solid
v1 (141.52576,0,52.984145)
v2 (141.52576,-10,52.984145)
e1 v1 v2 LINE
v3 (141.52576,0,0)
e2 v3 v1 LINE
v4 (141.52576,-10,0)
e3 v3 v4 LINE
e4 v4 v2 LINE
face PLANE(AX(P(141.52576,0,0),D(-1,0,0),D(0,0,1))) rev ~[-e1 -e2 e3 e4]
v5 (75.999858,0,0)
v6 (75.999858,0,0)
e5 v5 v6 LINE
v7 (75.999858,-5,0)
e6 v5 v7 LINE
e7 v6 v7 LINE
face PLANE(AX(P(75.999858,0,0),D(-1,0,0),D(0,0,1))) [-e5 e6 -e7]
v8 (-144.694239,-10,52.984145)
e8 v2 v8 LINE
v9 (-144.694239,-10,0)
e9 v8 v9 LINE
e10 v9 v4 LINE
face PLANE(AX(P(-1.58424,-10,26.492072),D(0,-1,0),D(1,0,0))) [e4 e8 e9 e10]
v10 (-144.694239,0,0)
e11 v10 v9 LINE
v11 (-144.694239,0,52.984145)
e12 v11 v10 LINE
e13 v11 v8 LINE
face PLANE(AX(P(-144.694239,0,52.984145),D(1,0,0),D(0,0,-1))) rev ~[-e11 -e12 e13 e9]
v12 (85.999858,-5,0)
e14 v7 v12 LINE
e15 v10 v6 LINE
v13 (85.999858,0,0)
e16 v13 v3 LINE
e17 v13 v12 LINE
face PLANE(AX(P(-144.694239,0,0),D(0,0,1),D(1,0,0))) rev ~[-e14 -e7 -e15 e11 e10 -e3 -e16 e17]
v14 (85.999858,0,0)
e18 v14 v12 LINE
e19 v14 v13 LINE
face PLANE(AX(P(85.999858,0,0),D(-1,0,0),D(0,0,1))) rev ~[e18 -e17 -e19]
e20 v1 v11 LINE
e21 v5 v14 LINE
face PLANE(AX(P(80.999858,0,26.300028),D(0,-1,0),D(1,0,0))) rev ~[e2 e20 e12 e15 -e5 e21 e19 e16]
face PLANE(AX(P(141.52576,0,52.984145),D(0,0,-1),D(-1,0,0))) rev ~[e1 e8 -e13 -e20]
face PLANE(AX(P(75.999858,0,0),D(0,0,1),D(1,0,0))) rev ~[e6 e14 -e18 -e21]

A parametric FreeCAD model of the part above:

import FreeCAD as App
import Part
import Sketcher

doc = App.newDocument("Part")
body = doc.addObject("PartDesign::Body", "Body")

sketch1 = doc.addObject("Sketcher::SketchObject", "Sketch")
body.addObject(sketch1)
sketch1.AttachmentSupport = (doc.XZ_Plane, [""])
sketch1.MapMode = "FlatFace"
sketch1.addGeometry([
    Part.LineSegment(App.Vector(-145, 53, 0), App.Vector(-145, 0, 0)),
    Part.LineSegment(App.Vector(-145, 0, 0), App.Vector(142, 0, 0)),
    Part.LineSegment(App.Vector(142, 0, 0), App.Vector(142, 53, 0)),
    Part.LineSegment(App.Vector(142, 53, 0), App.Vector(-145, 53, 0)),
], False)
sketch1.addConstraint([
    Sketcher.Constraint("Coincident", 0, 2, 1, 1),
    Sketcher.Constraint("Coincident", 1, 2, 2, 1),
    Sketcher.Constraint("Coincident", 2, 2, 3, 1),
    Sketcher.Constraint("Coincident", 3, 2, 0, 1),
    Sketcher.Constraint("Vertical", 0),
    Sketcher.Constraint("Horizontal", 1),
    Sketcher.Constraint("Vertical", 2),
    Sketcher.Constraint("Horizontal", 3),
    Sketcher.Constraint("PointOnObject", 0, 2, -1),
    Sketcher.Constraint("DistanceX", 1, 1, 1, 2, 286.219999),
    Sketcher.Constraint("DistanceY", 0, 2, 0, 1, 52.984145),
    Sketcher.Constraint("DistanceX", 0, 2, -1, 1, 144.694239),
])
pad1 = doc.addObject("PartDesign::Pad", "Pad")
body.addObject(pad1)
pad1.Profile = sketch1
pad1.Length = 10

sketch2 = doc.addObject("Sketcher::SketchObject", "Sketch001")
body.addObject(sketch2)
sketch2.AttachmentSupport = (doc.XZ_Plane, [""])
sketch2.MapMode = "FlatFace"
sketch2.addGeometry([
    Part.LineSegment(App.Vector(76, 53, 0), App.Vector(76, 0, 0)),
    Part.LineSegment(App.Vector(76, 0, 0), App.Vector(86, 0, 0)),
    Part.LineSegment(App.Vector(86, 0, 0), App.Vector(86, 53, 0)),
    Part.LineSegment(App.Vector(86, 53, 0), App.Vector(76, 53, 0)),
], False)
sketch2.addConstraint([
    Sketcher.Constraint("Coincident", 0, 2, 1, 1),
    Sketcher.Constraint("Coincident", 1, 2, 2, 1),
    Sketcher.Constraint("Coincident", 2, 2, 3, 1),
    Sketcher.Constraint("Coincident", 3, 2, 0, 1),
    Sketcher.Constraint("Vertical", 0),
    Sketcher.Constraint("Horizontal", 1),
    Sketcher.Constraint("Vertical", 2),
    Sketcher.Constraint("Horizontal", 3),
    Sketcher.Constraint("PointOnObject", 0, 2, -1),
    Sketcher.Constraint("DistanceX", 1, 1, 1, 2, 10.0),
    Sketcher.Constraint("DistanceY", 0, 2, 0, 1, 52.600057),
    Sketcher.Constraint("DistanceX", -1, 1, 0, 2, 75.999858),
])
pad2 = doc.addObject("PartDesign::Pad", "Pad001")
body.addObject(pad2)
pad2.Profile = sketch2
pad2.Length = 5

doc.recompute()
